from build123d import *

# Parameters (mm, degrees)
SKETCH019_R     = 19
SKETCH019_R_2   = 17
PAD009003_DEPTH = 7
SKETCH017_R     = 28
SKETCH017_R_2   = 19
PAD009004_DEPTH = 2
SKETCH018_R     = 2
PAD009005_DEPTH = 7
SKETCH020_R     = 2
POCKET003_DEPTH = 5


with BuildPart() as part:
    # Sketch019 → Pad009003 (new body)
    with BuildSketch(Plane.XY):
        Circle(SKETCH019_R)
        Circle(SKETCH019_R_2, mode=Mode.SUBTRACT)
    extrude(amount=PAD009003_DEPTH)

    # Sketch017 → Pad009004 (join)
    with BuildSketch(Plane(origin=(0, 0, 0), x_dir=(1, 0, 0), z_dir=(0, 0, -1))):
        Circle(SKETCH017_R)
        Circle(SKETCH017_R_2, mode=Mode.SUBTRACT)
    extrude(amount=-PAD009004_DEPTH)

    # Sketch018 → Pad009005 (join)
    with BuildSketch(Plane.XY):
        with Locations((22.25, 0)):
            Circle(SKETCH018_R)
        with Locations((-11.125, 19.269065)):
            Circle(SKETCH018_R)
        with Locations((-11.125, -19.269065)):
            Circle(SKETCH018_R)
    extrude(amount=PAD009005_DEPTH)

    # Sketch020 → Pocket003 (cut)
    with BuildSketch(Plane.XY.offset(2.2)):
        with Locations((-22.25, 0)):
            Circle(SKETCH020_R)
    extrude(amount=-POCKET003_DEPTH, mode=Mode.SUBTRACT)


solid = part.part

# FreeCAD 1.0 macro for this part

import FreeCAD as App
import Part
import Sketcher

V = App.Vector

doc = App.newDocument("Part")
body = doc.addObject("PartDesign::Body", "Body")

sketch1 = body.newObject("Sketcher::SketchObject", "Sketch")
sketch1.AttachmentSupport = (doc.getObject("XY_Plane"), [""])
sketch1.MapMode = "FlatFace"
sketch1.addGeometry([
    Part.Circle(V(0, 0, 0), V(0, 0, 1), 19),
    Part.Circle(V(0, 0, 0), V(0, 0, 1), 17),
], False)
sketch1.addConstraint([
    Sketcher.Constraint("Coincident", 0, 3, -1, 1),
    Sketcher.Constraint("Coincident", 1, 3, -1, 1),
    Sketcher.Constraint("Diameter", 0, 38.0),
    Sketcher.Constraint("Diameter", 1, 34.0),
])
pad1 = body.newObject("PartDesign::Pad", "Pad")
pad1.Profile = sketch1
pad1.Length = 7

sketch2 = body.newObject("Sketcher::SketchObject", "Sketch001")
sketch2.AttachmentSupport = (doc.getObject("XY_Plane"), [""])
sketch2.MapMode = "FlatFace"
sketch2.addGeometry([
    Part.Circle(V(0, 0, 0), V(0, 0, 1), 28),
    Part.Circle(V(0, 0, 0), V(0, 0, 1), 19),
], False)
sketch2.addConstraint([
    Sketcher.Constraint("Coincident", 0, 3, -1, 1),
    Sketcher.Constraint("Coincident", 1, 3, -1, 1),
    Sketcher.Constraint("Diameter", 0, 56.0),
    Sketcher.Constraint("Diameter", 1, 38.0),
])
pad2 = body.newObject("PartDesign::Pad", "Pad001")
pad2.Profile = sketch2
pad2.Length = 2

sketch3 = body.newObject("Sketcher::SketchObject", "Sketch002")
sketch3.AttachmentSupport = (doc.getObject("XY_Plane"), [""])
sketch3.MapMode = "FlatFace"
sketch3.addGeometry([
    Part.Circle(V(22.2, 0, 0), V(0, 0, 1), 2),
    Part.Circle(V(-11.1, 19.3, 0), V(0, 0, 1), 2),
    Part.Circle(V(-11.1, -19.3, 0), V(0, 0, 1), 2),
], False)
sketch3.addConstraint([
    Sketcher.Constraint("Equal", 0, 1),
    Sketcher.Constraint("Equal", 1, 2),
    Sketcher.Constraint("Symmetric", 1, 3, 2, 3, -1),
    Sketcher.Constraint("PointOnObject", 0, 3, -1),
    Sketcher.Constraint("Diameter", 0, 4.0),
    Sketcher.Constraint("DistanceX", -1, 1, 0, 3, 22.25),
    Sketcher.Constraint("DistanceX", 1, 3, -1, 1, 11.125),
    Sketcher.Constraint("DistanceY", 2, 3, 1, 3, 38.53813),
])
pad3 = body.newObject("PartDesign::Pad", "Pad002")
pad3.Profile = sketch3
pad3.Length = 7

sketch4 = body.newObject("Sketcher::SketchObject", "Sketch003")
sketch4.AttachmentSupport = (doc.getObject("XY_Plane"), [""])
sketch4.MapMode = "FlatFace"
sketch4.AttachmentOffset = App.Placement(V(0, 0, 2.2), App.Rotation())
sketch4.addGeometry(Part.Circle(V(-22.2, 0, 0), V(0, 0, 1), 2), False)
sketch4.addConstraint([
    Sketcher.Constraint("PointOnObject", 0, 3, -1),
    Sketcher.Constraint("Diameter", 0, 4.0),
    Sketcher.Constraint("DistanceX", 0, 3, -1, 1, 22.25),
])
pocket1 = body.newObject("PartDesign::Pocket", "Pocket")
pocket1.Profile = sketch4
pocket1.Length = 5

doc.recompute()
